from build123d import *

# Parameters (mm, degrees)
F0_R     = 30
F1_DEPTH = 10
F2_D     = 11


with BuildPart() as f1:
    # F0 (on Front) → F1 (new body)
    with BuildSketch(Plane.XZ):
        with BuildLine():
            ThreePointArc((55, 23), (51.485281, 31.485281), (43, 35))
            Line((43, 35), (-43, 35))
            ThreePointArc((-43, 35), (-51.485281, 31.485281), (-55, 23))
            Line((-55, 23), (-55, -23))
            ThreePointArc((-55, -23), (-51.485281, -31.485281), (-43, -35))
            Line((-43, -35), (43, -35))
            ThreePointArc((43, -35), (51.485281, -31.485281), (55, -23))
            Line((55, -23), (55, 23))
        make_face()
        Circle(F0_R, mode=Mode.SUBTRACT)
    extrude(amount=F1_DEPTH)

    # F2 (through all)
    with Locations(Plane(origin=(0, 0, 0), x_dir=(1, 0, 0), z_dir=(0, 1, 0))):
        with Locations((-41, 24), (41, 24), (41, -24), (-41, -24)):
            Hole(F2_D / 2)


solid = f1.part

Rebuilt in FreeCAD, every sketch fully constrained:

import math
import FreeCAD as App
import Part
import Sketcher

V = App.Vector

doc = App.newDocument("Part")
body = doc.addObject("PartDesign::Body", "Body")

# Sketch on XZ plane
sketch1 = body.newObject("Sketcher::SketchObject", "Sketch")
sketch1.AttachmentSupport = (doc.getObject("XZ_Plane"), [""])
sketch1.MapMode = "FlatFace"
sketch1.addGeometry([
    Part.ArcOfCircle(Part.Circle(V(43, 23, 0), V(0, 0, 1), 12), math.radians(0), math.radians(90)),  # 0
    Part.LineSegment(V(43, 35, 0), V(-43, 35, 0)),  # 1
    Part.ArcOfCircle(Part.Circle(V(-43, 23, 0), V(0, 0, 1), 12), math.radians(90), math.radians(180)),  # 2
    Part.LineSegment(V(-55, 23, 0), V(-55, -23, 0)),  # 3
    Part.ArcOfCircle(Part.Circle(V(-43, -23, 0), V(0, 0, 1), 12), math.radians(-180), math.radians(-90)),  # 4
    Part.LineSegment(V(-43, -35, 0), V(43, -35, 0)),  # 5
    Part.ArcOfCircle(Part.Circle(V(43, -23, 0), V(0, 0, 1), 12), math.radians(-90), math.radians(0)),  # 6
    Part.LineSegment(V(55, -23, 0), V(55, 23, 0)),  # 7
    Part.Circle(V(0, 0, 0), V(0, 0, 1), 30),  # 8
], False)
sketch1.addConstraint([
    Sketcher.Constraint("Tangent", 0, 2, 1, 1),
    Sketcher.Constraint("Tangent", 1, 2, 2, 1),
    Sketcher.Constraint("Tangent", 2, 2, 3, 1),
    Sketcher.Constraint("Tangent", 3, 2, 4, 1),
    Sketcher.Constraint("Tangent", 4, 2, 5, 1),
    Sketcher.Constraint("Tangent", 5, 2, 6, 1),
    Sketcher.Constraint("Tangent", 6, 2, 7, 1),
    Sketcher.Constraint("Tangent", 7, 2, 0, 1),
    Sketcher.Constraint("Horizontal", 1),
    Sketcher.Constraint("Vertical", 3),
    Sketcher.Constraint("Horizontal", 5),
    Sketcher.Constraint("Vertical", 7),
    Sketcher.Constraint("Coincident", 8, 3, -1, 1),
    Sketcher.Constraint("Equal", 0, 2),
    Sketcher.Constraint("Equal", 2, 4),
    Sketcher.Constraint("Equal", 4, 6),
    Sketcher.Constraint("Symmetric", 0, 3, 4, 3, -1, 1),
    Sketcher.Constraint("Diameter", 8, 60.0),
    Sketcher.Constraint("Radius", 0, 12.000001),
    Sketcher.Constraint("DistanceX", 1, 2, 1, 1, 86.0),
    Sketcher.Constraint("DistanceY", 3, 2, 3, 1, 46.0),
])
pad1 = body.newObject("PartDesign::Pad", "Pad")
pad1.Profile = sketch1
pad1.Length = 10

# Sketch on XZ plane
sketch2 = body.newObject("Sketcher::SketchObject", "Sketch001")
sketch2.AttachmentSupport = (doc.getObject("XZ_Plane"), [""])
sketch2.MapMode = "FlatFace"
sketch2.addGeometry([
    Part.Circle(V(-41, -24, 0), V(0, 0, 1), 6),
    Part.Circle(V(41, -24, 0), V(0, 0, 1), 6),
    Part.Circle(V(41, 24, 0), V(0, 0, 1), 6),
    Part.Circle(V(-41, 24, 0), V(0, 0, 1), 6),
], False)
sketch2.addConstraint([
    Sketcher.Constraint("Equal", 0, 1),
    Sketcher.Constraint("Equal", 1, 2),
    Sketcher.Constraint("Equal", 2, 3),
    Sketcher.Constraint("Symmetric", 0, 3, 2, 3, -1, 1),
    Sketcher.Constraint("Symmetric", 1, 3, 3, 3, -1, 1),
    Sketcher.Constraint("Symmetric", 0, 3, 1, 3, -2),
    Sketcher.Constraint("Diameter", 0, 11.0),
    Sketcher.Constraint("DistanceX", 0, 3, -1, 1, 41.0),
    Sketcher.Constraint("DistanceY", 0, 3, -1, 1, 24.0),
])
doc.recompute()
hole = body.newObject("PartDesign::Hole", "Hole")
hole.Profile = sketch2
hole.ThreadType = "None"
hole.Diameter = 11
hole.DepthType = "ThroughAll"
hole.Reversed = True

doc.recompute()
